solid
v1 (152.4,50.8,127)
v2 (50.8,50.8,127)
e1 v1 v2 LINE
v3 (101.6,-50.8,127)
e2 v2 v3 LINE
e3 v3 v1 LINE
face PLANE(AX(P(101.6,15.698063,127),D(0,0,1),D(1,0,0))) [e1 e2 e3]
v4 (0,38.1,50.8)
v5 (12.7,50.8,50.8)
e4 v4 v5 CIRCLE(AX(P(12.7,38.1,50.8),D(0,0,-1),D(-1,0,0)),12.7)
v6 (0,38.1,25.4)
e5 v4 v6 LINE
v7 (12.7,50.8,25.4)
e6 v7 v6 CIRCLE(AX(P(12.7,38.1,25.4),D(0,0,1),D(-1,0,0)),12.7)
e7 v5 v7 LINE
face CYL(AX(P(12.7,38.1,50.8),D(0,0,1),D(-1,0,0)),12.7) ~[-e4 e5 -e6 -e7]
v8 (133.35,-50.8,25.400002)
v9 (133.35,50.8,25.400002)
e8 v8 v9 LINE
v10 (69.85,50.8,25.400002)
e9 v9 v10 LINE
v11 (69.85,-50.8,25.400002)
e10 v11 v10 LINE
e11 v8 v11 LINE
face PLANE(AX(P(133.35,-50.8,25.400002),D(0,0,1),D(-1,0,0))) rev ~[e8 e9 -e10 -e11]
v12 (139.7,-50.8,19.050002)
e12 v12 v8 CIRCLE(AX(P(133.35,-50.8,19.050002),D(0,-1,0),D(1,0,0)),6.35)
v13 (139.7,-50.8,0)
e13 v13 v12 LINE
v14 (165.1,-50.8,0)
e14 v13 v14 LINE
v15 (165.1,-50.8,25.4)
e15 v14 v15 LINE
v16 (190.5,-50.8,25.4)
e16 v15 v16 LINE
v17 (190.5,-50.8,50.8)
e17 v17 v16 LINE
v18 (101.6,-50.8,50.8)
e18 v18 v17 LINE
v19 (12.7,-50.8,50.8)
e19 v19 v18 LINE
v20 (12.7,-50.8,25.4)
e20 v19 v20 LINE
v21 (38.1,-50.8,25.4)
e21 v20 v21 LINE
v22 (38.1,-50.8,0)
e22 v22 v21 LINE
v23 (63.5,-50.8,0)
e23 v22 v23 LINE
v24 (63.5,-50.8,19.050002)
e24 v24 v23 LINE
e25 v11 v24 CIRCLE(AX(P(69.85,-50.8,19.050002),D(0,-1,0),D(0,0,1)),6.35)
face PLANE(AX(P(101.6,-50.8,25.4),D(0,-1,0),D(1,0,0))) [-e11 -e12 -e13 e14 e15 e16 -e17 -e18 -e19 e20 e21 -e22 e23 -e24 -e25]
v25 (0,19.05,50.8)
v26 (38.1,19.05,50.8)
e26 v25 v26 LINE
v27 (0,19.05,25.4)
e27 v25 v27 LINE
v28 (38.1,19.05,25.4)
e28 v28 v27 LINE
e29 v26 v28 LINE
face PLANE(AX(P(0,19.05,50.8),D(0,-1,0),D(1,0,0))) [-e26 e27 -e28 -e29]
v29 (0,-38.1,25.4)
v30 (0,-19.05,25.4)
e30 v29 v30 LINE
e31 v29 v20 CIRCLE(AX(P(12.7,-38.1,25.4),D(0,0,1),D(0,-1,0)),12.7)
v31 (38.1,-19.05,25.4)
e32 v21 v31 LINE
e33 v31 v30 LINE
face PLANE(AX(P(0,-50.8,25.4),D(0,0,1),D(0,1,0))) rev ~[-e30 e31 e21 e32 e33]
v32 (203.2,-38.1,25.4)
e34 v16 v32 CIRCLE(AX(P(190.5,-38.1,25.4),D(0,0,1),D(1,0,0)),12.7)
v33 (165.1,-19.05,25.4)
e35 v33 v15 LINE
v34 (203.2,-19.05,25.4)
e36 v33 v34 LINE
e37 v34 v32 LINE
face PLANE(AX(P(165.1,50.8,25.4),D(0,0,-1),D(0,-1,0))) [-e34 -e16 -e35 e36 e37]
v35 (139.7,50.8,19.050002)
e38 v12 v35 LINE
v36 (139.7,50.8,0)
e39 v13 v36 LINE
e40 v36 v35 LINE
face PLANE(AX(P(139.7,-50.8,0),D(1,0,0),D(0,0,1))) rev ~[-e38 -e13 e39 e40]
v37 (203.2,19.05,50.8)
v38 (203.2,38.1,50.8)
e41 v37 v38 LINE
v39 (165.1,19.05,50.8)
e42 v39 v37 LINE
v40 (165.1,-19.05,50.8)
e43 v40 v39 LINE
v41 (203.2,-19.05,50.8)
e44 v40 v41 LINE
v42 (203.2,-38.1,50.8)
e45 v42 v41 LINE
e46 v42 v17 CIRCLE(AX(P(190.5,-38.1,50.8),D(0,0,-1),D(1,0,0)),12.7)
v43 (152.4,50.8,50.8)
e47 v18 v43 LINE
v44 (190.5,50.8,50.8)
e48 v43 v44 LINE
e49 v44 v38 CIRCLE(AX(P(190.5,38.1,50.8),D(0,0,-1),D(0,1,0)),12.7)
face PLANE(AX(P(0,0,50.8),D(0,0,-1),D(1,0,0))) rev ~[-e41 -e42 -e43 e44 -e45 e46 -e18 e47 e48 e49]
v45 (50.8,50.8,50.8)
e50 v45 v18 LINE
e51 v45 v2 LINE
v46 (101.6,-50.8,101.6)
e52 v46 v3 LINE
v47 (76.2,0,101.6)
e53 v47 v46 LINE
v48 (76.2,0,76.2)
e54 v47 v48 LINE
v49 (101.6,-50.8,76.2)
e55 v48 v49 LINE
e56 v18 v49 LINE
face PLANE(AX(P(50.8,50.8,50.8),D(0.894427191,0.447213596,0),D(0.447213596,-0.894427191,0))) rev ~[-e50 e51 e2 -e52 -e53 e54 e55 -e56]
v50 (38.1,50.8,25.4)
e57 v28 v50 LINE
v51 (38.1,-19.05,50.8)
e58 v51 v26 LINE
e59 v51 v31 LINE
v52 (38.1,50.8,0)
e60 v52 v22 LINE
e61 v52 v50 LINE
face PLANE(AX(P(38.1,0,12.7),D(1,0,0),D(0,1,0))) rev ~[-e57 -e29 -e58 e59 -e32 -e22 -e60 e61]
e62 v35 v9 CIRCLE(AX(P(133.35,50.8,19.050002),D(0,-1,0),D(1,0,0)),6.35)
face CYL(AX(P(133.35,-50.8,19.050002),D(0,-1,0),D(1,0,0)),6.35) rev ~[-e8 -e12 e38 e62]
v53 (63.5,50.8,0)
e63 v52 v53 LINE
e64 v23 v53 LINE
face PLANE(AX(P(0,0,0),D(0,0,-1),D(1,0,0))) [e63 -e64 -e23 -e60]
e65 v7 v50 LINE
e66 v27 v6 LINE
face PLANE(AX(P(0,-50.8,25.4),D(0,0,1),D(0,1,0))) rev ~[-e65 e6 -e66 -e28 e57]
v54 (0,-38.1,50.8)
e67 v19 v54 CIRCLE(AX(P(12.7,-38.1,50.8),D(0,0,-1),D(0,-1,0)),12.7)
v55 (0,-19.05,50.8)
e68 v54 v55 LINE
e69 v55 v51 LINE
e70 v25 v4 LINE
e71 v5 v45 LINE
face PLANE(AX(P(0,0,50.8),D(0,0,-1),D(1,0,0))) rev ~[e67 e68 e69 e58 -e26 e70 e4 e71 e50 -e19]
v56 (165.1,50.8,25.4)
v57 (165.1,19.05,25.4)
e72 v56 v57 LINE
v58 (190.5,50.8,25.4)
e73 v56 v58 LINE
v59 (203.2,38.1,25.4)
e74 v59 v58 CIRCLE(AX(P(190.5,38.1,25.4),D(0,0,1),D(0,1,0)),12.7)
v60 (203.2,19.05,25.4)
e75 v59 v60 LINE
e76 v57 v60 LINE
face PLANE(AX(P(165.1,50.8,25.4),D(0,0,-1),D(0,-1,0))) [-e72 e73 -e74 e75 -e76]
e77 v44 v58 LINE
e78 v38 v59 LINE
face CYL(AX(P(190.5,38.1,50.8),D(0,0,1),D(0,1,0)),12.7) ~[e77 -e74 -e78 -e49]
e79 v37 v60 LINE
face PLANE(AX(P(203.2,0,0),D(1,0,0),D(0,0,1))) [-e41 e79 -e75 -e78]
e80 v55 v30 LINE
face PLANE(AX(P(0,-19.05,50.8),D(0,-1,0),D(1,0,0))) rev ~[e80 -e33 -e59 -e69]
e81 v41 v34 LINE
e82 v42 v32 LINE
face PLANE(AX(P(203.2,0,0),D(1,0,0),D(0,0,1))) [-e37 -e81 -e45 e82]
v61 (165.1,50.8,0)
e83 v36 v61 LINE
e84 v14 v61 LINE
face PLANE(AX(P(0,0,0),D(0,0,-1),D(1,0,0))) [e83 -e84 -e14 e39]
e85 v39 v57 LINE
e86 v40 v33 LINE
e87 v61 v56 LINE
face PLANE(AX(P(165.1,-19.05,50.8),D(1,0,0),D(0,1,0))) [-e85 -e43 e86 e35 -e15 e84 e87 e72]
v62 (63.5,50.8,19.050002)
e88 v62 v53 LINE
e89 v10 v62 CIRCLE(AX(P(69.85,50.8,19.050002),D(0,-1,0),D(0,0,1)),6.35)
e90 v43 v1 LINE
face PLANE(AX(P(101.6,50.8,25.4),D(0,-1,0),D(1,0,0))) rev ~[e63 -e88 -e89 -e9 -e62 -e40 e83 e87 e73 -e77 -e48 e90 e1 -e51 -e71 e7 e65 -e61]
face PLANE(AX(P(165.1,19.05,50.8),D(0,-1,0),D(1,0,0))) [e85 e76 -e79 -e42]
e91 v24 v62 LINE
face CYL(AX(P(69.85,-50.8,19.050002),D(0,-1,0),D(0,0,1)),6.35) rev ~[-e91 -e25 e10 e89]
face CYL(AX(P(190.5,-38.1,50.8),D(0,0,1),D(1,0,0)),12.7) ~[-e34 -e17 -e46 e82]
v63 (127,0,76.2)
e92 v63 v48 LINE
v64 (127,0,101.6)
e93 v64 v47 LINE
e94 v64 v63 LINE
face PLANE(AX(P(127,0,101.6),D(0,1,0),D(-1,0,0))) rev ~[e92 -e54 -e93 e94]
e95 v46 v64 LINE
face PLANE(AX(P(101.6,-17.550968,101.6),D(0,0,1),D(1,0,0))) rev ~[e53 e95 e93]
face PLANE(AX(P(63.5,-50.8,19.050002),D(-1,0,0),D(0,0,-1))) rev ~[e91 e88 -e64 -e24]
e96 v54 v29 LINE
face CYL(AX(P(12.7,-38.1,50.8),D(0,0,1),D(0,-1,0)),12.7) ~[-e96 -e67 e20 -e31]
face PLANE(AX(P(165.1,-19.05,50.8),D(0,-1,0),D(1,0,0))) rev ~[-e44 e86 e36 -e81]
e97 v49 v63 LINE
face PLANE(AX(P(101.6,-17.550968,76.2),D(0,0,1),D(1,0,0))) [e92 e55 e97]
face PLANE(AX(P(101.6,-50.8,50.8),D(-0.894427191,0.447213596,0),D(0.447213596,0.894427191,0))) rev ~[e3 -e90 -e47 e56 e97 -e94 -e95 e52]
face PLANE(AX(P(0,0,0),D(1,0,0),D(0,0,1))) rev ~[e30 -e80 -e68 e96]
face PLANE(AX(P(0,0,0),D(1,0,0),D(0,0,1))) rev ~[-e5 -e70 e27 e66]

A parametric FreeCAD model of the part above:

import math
import FreeCAD as App
import Part
import Sketcher
Q = App.Units.Quantity

doc = App.newDocument("Part")
body = doc.addObject("PartDesign::Body", "Body")

sketch1 = body.newObject("Sketcher::SketchObject", "Sketch")
sketch1.AttachmentSupport = (doc.getObject("XZ_Plane"), [""])
sketch1.MapMode = "FlatFace"
sketch1.addGeometry([
    Part.LineSegment(App.Vector(0, 51, 0), App.Vector(0, 0, 0)),
    Part.LineSegment(App.Vector(0, 0, 0), App.Vector(203, 0, 0)),
    Part.LineSegment(App.Vector(203, 0, 0), App.Vector(203, 51, 0)),
    Part.LineSegment(App.Vector(203, 51, 0), App.Vector(0, 51, 0)),
], False)
sketch1.addConstraint([
    Sketcher.Constraint("Coincident", 0, 2, 1, 1),
    Sketcher.Constraint("Coincident", 1, 2, 2, 1),
    Sketcher.Constraint("Coincident", 2, 2, 3, 1),
    Sketcher.Constraint("Coincident", 3, 2, 0, 1),
    Sketcher.Constraint("Vertical", 0),
    Sketcher.Constraint("Horizontal", 1),
    Sketcher.Constraint("Vertical", 2),
    Sketcher.Constraint("Horizontal", 3),
    Sketcher.Constraint("Coincident", 0, 2, -1, 1),
    Sketcher.Constraint("DistanceX", 1, 1, 1, 2, Q("8 in")),
    Sketcher.Constraint("DistanceY", 0, 2, 0, 1, Q("2 in")),
])
pad1 = body.newObject("PartDesign::Pad", "Pad")
pad1.Profile = sketch1
pad1.Length = Q("4 in")
pad1.Midplane = True

sketch2 = body.newObject("Sketcher::SketchObject", "Sketch001")
sketch2.AttachmentSupport = (doc.getObject("XY_Plane"), [""])
sketch2.MapMode = "FlatFace"
sketch2.AttachmentOffset = App.Placement(App.Vector(0, 0, 2 * 25.4), App.Rotation())
sketch2.addGeometry([
    Part.LineSegment(App.Vector(165, 19, 0), App.Vector(165, -19, 0)),
    Part.LineSegment(App.Vector(165, -19, 0), App.Vector(203, -19, 0)),
    Part.LineSegment(App.Vector(203, -19, 0), App.Vector(203, 19, 0)),
    Part.LineSegment(App.Vector(203, 19, 0), App.Vector(165, 19, 0)),
], False)
sketch2.addConstraint([
    Sketcher.Constraint("Coincident", 0, 2, 1, 1),
    Sketcher.Constraint("Coincident", 1, 2, 2, 1),
    Sketcher.Constraint("Coincident", 2, 2, 3, 1),
    Sketcher.Constraint("Coincident", 3, 2, 0, 1),
    Sketcher.Constraint("Vertical", 0),
    Sketcher.Constraint("Horizontal", 1),
    Sketcher.Constraint("Vertical", 2),
    Sketcher.Constraint("Horizontal", 3),
    Sketcher.Constraint("Equal", 3, 0),
    Sketcher.Constraint("DistanceX", 1, 1, 1, 2, Q("1.5 in")),
    Sketcher.Constraint("DistanceX", -1, 1, 1, 2, Q("8 in")),
    Sketcher.Constraint("DistanceY", 0, 2, -1, 1, Q("0.75 in")),
])
pocket1 = body.newObject("PartDesign::Pocket", "Pocket")
pocket1.Profile = sketch2
pocket1.Type = "ThroughAll"

sketch3 = body.newObject("Sketcher::SketchObject", "Sketch002")
sketch3.AttachmentSupport = (doc.getObject("XY_Plane"), [""])
sketch3.MapMode = "FlatFace"
sketch3.AttachmentOffset = App.Placement(App.Vector(0, 0, 2 * 25.4), App.Rotation())
sketch3.addGeometry([
    Part.LineSegment(App.Vector(0, 19, 0), App.Vector(0, -19, 0)),
    Part.LineSegment(App.Vector(0, -19, 0), App.Vector(38, -19, 0)),
    Part.LineSegment(App.Vector(38, -19, 0), App.Vector(38, 19, 0)),
    Part.LineSegment(App.Vector(38, 19, 0), App.Vector(0, 19, 0)),
], False)
sketch3.addConstraint([
    Sketcher.Constraint("Coincident", 0, 2, 1, 1),
    Sketcher.Constraint("Coincident", 1, 2, 2, 1),
    Sketcher.Constraint("Coincident", 2, 2, 3, 1),
    Sketcher.Constraint("Coincident", 3, 2, 0, 1),
    Sketcher.Constraint("Vertical", 0),
    Sketcher.Constraint("Horizontal", 1),
    Sketcher.Constraint("Vertical", 2),
    Sketcher.Constraint("Horizontal", 3),
    Sketcher.Constraint("Symmetric", 0, 2, 3, 2, -1, 1),
    Sketcher.Constraint("Equal", 3, 0),
    Sketcher.Constraint("DistanceX", 1, 1, 1, 2, Q("1.5 in")),
])
pocket2 = body.newObject("PartDesign::Pocket", "Pocket001")
pocket2.Profile = sketch3
pocket2.Type = "ThroughAll"

sketch4 = body.newObject("Sketcher::SketchObject", "Sketch003")
sketch4.AttachmentSupport = (doc.getObject("YZ_Plane"), [""])
sketch4.MapMode = "FlatFace"
sketch4.addGeometry([
    Part.LineSegment(App.Vector(-51, 25, 0), App.Vector(-51, 0, 0)),
    Part.LineSegment(App.Vector(-51, 0, 0), App.Vector(51, 0, 0)),
    Part.LineSegment(App.Vector(51, 0, 0), App.Vector(51, 25, 0)),
    Part.LineSegment(App.Vector(51, 25, 0), App.Vector(-51, 25, 0)),
], False)
sketch4.addConstraint([
    Sketcher.Constraint("Coincident", 0, 2, 1, 1),
    Sketcher.Constraint("Coincident", 1, 2, 2, 1),
    Sketcher.Constraint("Coincident", 2, 2, 3, 1),
    Sketcher.Constraint("Coincident", 3, 2, 0, 1),
    Sketcher.Constraint("Vertical", 0),
    Sketcher.Constraint("Horizontal", 1),
    Sketcher.Constraint("Vertical", 2),
    Sketcher.Constraint("Horizontal", 3),
    Sketcher.Constraint("Symmetric", 0, 2, 1, 2, -1, 1),
    Sketcher.Constraint("DistanceX", 1, 1, 1, 2, Q("4 in")),
    Sketcher.Constraint("DistanceY", 0, 2, 0, 1, Q("1 in")),
])
pocket3 = body.newObject("PartDesign::Pocket", "Pocket002")
pocket3.Profile = sketch4
pocket3.Length = Q("1.5 in")
pocket3.Reversed = True

sketch5 = body.newObject("Sketcher::SketchObject", "Sketch004")
sketch5.AttachmentSupport = (doc.getObject("YZ_Plane"), [""])
sketch5.MapMode = "FlatFace"
sketch5.AttachmentOffset = App.Placement(App.Vector(0, 0, 6.5 * 25.4), App.Rotation())
sketch5.addGeometry([
    Part.LineSegment(App.Vector(51, 0, 0), App.Vector(51, 25, 0)),
    Part.LineSegment(App.Vector(51, 25, 0), App.Vector(-51, 25, 0)),
    Part.LineSegment(App.Vector(-51, 25, 0), App.Vector(-51, 0, 0)),
    Part.LineSegment(App.Vector(-51, 0, 0), App.Vector(51, 0, 0)),
], False)
sketch5.addConstraint([
    Sketcher.Constraint("Coincident", 0, 2, 1, 1),
    Sketcher.Constraint("Coincident", 1, 2, 2, 1),
    Sketcher.Constraint("Coincident", 2, 2, 3, 1),
    Sketcher.Constraint("Coincident", 3, 2, 0, 1),
    Sketcher.Constraint("Vertical", 0),
    Sketcher.Constraint("Horizontal", 1),
    Sketcher.Constraint("Vertical", 2),
    Sketcher.Constraint("Horizontal", 3),
    Sketcher.Constraint("Symmetric", 2, 2, 3, 2, -1, 1),
    Sketcher.Constraint("DistanceX", 1, 2, 1, 1, Q("4 in")),
    Sketcher.Constraint("DistanceY", 0, 1, 0, 2, Q("1 in")),
])
pocket4 = body.newObject("PartDesign::Pocket", "Pocket003")
pocket4.Profile = sketch5
pocket4.Length = Q("1.5 in")
pocket4.Reversed = True

sketch6 = body.newObject("Sketcher::SketchObject", "Sketch005")
sketch6.AttachmentSupport = (doc.getObject("XZ_Plane"), [""])
sketch6.MapMode = "FlatFace"
sketch6.AttachmentOffset = App.Placement(App.Vector(0, 0, 2 * 25.4), App.Rotation())
sketch6.addGeometry([
    Part.LineSegment(App.Vector(64, 19, 0), App.Vector(64, 0, 0)),
    Part.LineSegment(App.Vector(64, 0, 0), App.Vector(140, 0, 0)),
    Part.LineSegment(App.Vector(140, 0, 0), App.Vector(140, 19, 0)),
    Part.ArcOfCircle(Part.Circle(App.Vector(133, 19, 0), App.Vector(0, 0, 1), 6), math.radians(0), math.radians(90)),
    Part.LineSegment(App.Vector(133, 25, 0), App.Vector(70, 25, 0)),
    Part.ArcOfCircle(Part.Circle(App.Vector(70, 19, 0), App.Vector(0, 0, 1), 6), math.radians(90), math.radians(180)),
], False)
sketch6.addConstraint([
    Sketcher.Constraint("Coincident", 0, 2, 1, 1),
    Sketcher.Constraint("Coincident", 1, 2, 2, 1),
    Sketcher.Constraint("Tangent", 2, 2, 3, 1),
    Sketcher.Constraint("Tangent", 3, 2, 4, 1),
    Sketcher.Constraint("Tangent", 4, 2, 5, 1),
    Sketcher.Constraint("Tangent", 5, 2, 0, 1),
    Sketcher.Constraint("Vertical", 0),
    Sketcher.Constraint("Horizontal", 1),
    Sketcher.Constraint("Vertical", 2),
    Sketcher.Constraint("Horizontal", 4),
    Sketcher.Constraint("Equal", 3, 5),
    Sketcher.Constraint("PointOnObject", 0, 2, -1),
    Sketcher.Constraint("DistanceX", 1, 1, 1, 2, Q("3 in")),
    Sketcher.Constraint("Radius", 3, Q("0.25 in")),
    Sketcher.Constraint("DistanceY", -1, 1, 3, 2, Q("1.0000001 in")),
    Sketcher.Constraint("DistanceX", -1, 1, 0, 2, Q("2.5 in")),
])
pocket5 = body.newObject("PartDesign::Pocket", "Pocket004")
pocket5.Profile = sketch6
pocket5.Type = "ThroughAll"

sketch7 = body.newObject("Sketcher::SketchObject", "Sketch006")
sketch7.AttachmentSupport = (doc.getObject("XY_Plane"), [""])
sketch7.MapMode = "FlatFace"
sketch7.AttachmentOffset = App.Placement(App.Vector(0, 0, 2 * 25.4), App.Rotation())
sketch7.addGeometry([
    Part.LineSegment(App.Vector(0, 51, 0), App.Vector(0, 38, 0)),
    Part.ArcOfCircle(Part.Circle(App.Vector(13, 38, 0), App.Vector(0, 0, 1), 13), math.radians(90), math.radians(180)),
    Part.LineSegment(App.Vector(13, 51, 0), App.Vector(0, 51, 0)),
    Part.LineSegment(App.Vector(0, -51, 0), App.Vector(13, -51, 0)),
    Part.ArcOfCircle(Part.Circle(App.Vector(13, -38, 0), App.Vector(0, 0, 1), 13), math.radians(180), math.radians(270)),
    Part.LineSegment(App.Vector(0, -38, 0), App.Vector(0, -51, 0)),
    Part.ArcOfCircle(Part.Circle(App.Vector(190, -38, 0), App.Vector(0, 0, 1), 13), math.radians(-90), math.radians(0)),
    Part.LineSegment(App.Vector(190, -51, 0), App.Vector(203, -51, 0)),
    Part.LineSegment(App.Vector(203, -51, 0), App.Vector(203, -38, 0)),
    Part.ArcOfCircle(Part.Circle(App.Vector(190, 38, 0), App.Vector(0, 0, 1), 13), math.radians(0), math.radians(90)),
    Part.LineSegment(App.Vector(203, 38, 0), App.Vector(203, 51, 0)),
    Part.LineSegment(App.Vector(203, 51, 0), App.Vector(190, 51, 0)),
], False)
sketch7.addConstraint([
    Sketcher.Constraint("Tangent", 0, 2, 1, 2),
    Sketcher.Constraint("Tangent", 1, 1, 2, 1),
    Sketcher.Constraint("Coincident", 2, 2, 0, 1),
    Sketcher.Constraint("Tangent", 3, 2, 4, 2),
    Sketcher.Constraint("Tangent", 4, 1, 5, 1),
    Sketcher.Constraint("Coincident", 5, 2, 3, 1),
    Sketcher.Constraint("Tangent", 6, 1, 7, 1),
    Sketcher.Constraint("Coincident", 7, 2, 8, 1),
    Sketcher.Constraint("Tangent", 8, 2, 6, 2),
    Sketcher.Constraint("Tangent", 9, 1, 10, 1),
    Sketcher.Constraint("Coincident", 10, 2, 11, 1),
    Sketcher.Constraint("Tangent", 11, 2, 9, 2),
    Sketcher.Constraint("Vertical", 0),
    Sketcher.Constraint("Horizontal", 2),
    Sketcher.Constraint("Horizontal", 3),
    Sketcher.Constraint("Vertical", 5),
    Sketcher.Constraint("Horizontal", 7),
    Sketcher.Constraint("Vertical", 8),
    Sketcher.Constraint("Vertical", 10),
    Sketcher.Constraint("Horizontal", 11),
    Sketcher.Constraint("Equal", 1, 4),
    Sketcher.Constraint("Equal", 4, 6),
    Sketcher.Constraint("Equal", 6, 9),
    Sketcher.Constraint("Symmetric", 0, 2, 4, 1, -1, 1),
    Sketcher.Constraint("Symmetric", 6, 3, 9, 3, -1),
    Sketcher.Constraint("PointOnObject", 0, 2, -2),
    Sketcher.Constraint("Horizontal", 4, 3, 6, 3),
    Sketcher.Constraint("Radius", 1, Q("0.5 in")),
    Sketcher.Constraint("DistanceY", -1, 1, 1, 1, Q("2 in")),
    Sketcher.Constraint("DistanceX", -1, 1, 7, 2, Q("8 in")),
])
pocket6 = body.newObject("PartDesign::Pocket", "Pocket005")
pocket6.Profile = sketch7
pocket6.Type = "ThroughAll"

sketch8 = body.newObject("Sketcher::SketchObject", "Sketch007")
sketch8.AttachmentSupport = (doc.getObject("XY_Plane"), [""])
sketch8.MapMode = "FlatFace"
sketch8.AttachmentOffset = App.Placement(App.Vector(0, 0, 2 * 25.4), App.Rotation())
sketch8.addGeometry([
    Part.LineSegment(App.Vector(152, 51, 0), App.Vector(51, 51, 0)),
    Part.LineSegment(App.Vector(51, 51, 0), App.Vector(102, -51, 0)),
    Part.LineSegment(App.Vector(102, -51, 0), App.Vector(152, 51, 0)),
], False)
sketch8.addConstraint([
    Sketcher.Constraint("Coincident", 0, 2, 1, 1),
    Sketcher.Constraint("Coincident", 1, 2, 2, 1),
    Sketcher.Constraint("Coincident", 2, 2, 0, 1),
    Sketcher.Constraint("Horizontal", 0),
    Sketcher.Constraint("Equal", 1, 2),
    Sketcher.Constraint("DistanceX", 0, 2, 0, 1, Q("4 in")),
    Sketcher.Constraint("DistanceX", -1, 1, 0, 2, Q("2 in")),
    Sketcher.Constraint("DistanceY", -1, 1, 0, 2, Q("2 in")),
    Sketcher.Constraint("DistanceY", 1, 2, -1, 1, Q("2 in")),
])
pad2 = body.newObject("PartDesign::Pad", "Pad001")
pad2.Profile = sketch8
pad2.Length = Q("3 in")

sketch9 = body.newObject("Sketcher::SketchObject", "Sketch008")
sketch9.AttachmentSupport = (doc.getObject("XY_Plane"), [""])
sketch9.MapMode = "FlatFace"
sketch9.AttachmentOffset = App.Placement(App.Vector(0, 0, 4 * 25.4), App.Rotation())
sketch9.addGeometry([
    Part.LineSegment(App.Vector(102, -51, 0), App.Vector(127, 0, 0)),
    Part.LineSegment(App.Vector(127, 0, 0), App.Vector(76, 0, 0)),
    Part.LineSegment(App.Vector(76, 0, 0), App.Vector(102, -51, 0)),
], False)
sketch9.addConstraint([
    Sketcher.Constraint("Coincident", 0, 2, 1, 1),
    Sketcher.Constraint("Coincident", 1, 2, 2, 1),
    Sketcher.Constraint("Coincident", 2, 2, 0, 1),
    Sketcher.Constraint("Horizontal", 1),
    Sketcher.Constraint("PointOnObject", 0, 2, -1),
    Sketcher.Constraint("Equal", 0, 2),
    Sketcher.Constraint("DistanceX", 1, 2, 1, 1, Q("2 in")),
    Sketcher.Constraint("DistanceX", -1, 1, 0, 2, Q("5 in")),
    Sketcher.Constraint("DistanceY", 2, 2, -1, 1, Q("2 in")),
])
pocket7 = body.newObject("PartDesign::Pocket", "Pocket006")
pocket7.Profile = sketch9
pocket7.Length = Q("1 in")

doc.recompute()
